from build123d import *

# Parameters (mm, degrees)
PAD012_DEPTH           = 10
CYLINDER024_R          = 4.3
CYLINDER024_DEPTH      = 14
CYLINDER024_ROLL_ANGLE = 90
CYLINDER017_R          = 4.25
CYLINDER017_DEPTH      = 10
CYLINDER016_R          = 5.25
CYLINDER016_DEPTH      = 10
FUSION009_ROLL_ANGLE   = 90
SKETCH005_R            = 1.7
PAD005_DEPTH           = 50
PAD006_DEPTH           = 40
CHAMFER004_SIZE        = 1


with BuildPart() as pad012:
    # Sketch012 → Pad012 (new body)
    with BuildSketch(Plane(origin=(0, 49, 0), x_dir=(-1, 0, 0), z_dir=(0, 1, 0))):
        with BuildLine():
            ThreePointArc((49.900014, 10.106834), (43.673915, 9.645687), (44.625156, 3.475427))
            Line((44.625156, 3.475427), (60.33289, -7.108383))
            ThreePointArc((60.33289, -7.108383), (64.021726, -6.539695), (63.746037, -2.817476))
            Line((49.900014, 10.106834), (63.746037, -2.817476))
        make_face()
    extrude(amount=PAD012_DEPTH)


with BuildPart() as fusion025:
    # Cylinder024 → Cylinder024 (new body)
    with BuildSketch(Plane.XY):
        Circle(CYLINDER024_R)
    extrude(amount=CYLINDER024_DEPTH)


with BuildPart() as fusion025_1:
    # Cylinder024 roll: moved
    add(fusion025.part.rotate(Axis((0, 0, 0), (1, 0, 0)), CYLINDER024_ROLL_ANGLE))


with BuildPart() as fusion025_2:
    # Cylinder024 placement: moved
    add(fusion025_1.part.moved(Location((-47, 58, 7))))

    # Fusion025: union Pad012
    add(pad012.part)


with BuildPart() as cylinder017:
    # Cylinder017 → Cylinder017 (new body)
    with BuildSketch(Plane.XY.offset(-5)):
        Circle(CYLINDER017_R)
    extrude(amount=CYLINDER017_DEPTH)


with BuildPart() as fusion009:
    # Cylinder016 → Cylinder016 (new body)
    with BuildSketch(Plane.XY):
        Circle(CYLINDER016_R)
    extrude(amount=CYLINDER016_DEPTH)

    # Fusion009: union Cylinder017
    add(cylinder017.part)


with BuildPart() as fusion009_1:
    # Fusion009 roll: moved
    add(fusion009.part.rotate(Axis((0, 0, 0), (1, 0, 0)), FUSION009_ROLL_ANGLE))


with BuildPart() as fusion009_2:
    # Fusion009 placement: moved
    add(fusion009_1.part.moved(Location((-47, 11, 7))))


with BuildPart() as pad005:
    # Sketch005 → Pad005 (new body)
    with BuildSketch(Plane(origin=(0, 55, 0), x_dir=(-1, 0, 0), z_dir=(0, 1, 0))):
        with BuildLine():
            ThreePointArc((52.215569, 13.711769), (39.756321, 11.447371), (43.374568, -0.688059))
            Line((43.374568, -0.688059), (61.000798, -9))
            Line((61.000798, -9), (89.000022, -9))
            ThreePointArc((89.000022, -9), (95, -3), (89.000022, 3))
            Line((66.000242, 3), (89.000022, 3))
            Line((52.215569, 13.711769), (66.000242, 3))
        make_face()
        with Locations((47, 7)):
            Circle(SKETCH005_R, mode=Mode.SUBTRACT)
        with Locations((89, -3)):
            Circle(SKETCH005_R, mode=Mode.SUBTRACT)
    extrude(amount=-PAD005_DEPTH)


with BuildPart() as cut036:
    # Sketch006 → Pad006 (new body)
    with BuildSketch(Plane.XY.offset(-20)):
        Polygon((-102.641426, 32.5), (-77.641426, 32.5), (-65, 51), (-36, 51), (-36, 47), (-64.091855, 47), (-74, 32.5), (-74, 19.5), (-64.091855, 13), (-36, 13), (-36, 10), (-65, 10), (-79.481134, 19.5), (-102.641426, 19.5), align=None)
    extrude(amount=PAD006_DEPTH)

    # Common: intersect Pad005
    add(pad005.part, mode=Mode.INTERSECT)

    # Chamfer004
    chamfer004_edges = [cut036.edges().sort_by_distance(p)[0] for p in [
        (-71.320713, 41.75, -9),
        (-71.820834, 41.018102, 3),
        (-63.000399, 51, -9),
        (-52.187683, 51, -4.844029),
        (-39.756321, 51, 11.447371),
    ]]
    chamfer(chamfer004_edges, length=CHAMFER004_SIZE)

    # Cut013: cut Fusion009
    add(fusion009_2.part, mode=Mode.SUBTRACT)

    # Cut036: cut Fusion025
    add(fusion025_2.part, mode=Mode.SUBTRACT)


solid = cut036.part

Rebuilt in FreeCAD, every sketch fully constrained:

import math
import FreeCAD as App
import Part
import Sketcher
from FreeCAD import Vector
Q = App.Units.Quantity


def edges_at(feature, points):
    """Names of the edges that pass closest to the given points."""
    edges = feature.Shape.Edges
    near = lambda p: min(range(len(edges)), key=lambda i: edges[i].distToShape(Part.Vertex(*p))[0])
    return sorted({f"Edge{near(p) + 1}" for p in points})

doc = App.newDocument("Part")
body = doc.addObject("PartDesign::Body", "Body")

# Sketch on XZ plane
sketch1 = body.newObject("Sketcher::SketchObject", "Sketch")
sketch1.AttachmentSupport = (doc.getObject("XZ_Plane"), [""])
sketch1.MapMode = "FlatFace"
sketch1.AttachmentOffset = App.Placement(Vector(0, 0, -49), App.Rotation())
sketch1.addGeometry(Part.ArcOfCircle(Part.Circle(Vector(-47, 7, 0), Vector(0, 0, 1), 4.25), math.radians(-56.028062), math.radians(133.028048)), False)
sketch1.addGeometry(Part.LineSegment(Vector(-44.625156, 3.475427, 0), Vector(-60.33289, -7.108383, 0)), False)
sketch1.addGeometry(Part.ArcOfCircle(Part.Circle(Vector(-61.869555, -4.827778, 0), Vector(0, 0, 1), 2.75), math.radians(133.02811), math.radians(303.97198)), False)
sketch1.addGeometry(Part.LineSegment(Vector(-63.746037, -2.817476, 0), Vector(-49.900014, 10.106834, 0)), False)
sketch1.addConstraint(Sketcher.Constraint("Tangent", 0, 1, 1, 1))
sketch1.addConstraint(Sketcher.Constraint("Tangent", 1, 2, 2, 2))
sketch1.addConstraint(Sketcher.Constraint("Tangent", 2, 1, 3, 1))
sketch1.addConstraint(Sketcher.Constraint("Tangent", 3, 2, 0, 2))
sketch1.addConstraint(Sketcher.Constraint("Radius", 0, Q("4.25 mm")))
sketch1.addConstraint(Sketcher.Constraint("Radius", 2, Q("2.75 mm")))
sketch1.addConstraint(Sketcher.Constraint("DistanceX", 0, 3, -1, 1, Q("47 mm")))
sketch1.addConstraint(Sketcher.Constraint("DistanceY", -1, 1, 0, 3, Q("7 mm")))
sketch1.addConstraint(Sketcher.Constraint("Distance", 3, Q("18.940701 mm")))
sketch1.addConstraint(Sketcher.Constraint("DistanceX", 2, 3, 0, 1, Q("17.244399 mm")))
pad1 = body.newObject("PartDesign::Pad", "Pad")
pad1.Profile = sketch1
pad1.Length = 10
pad1.Reversed = True
body2 = doc.addObject("PartDesign::Body", "Body001")

# Sketch on XY plane
sketch2 = body2.newObject("Sketcher::SketchObject", "Sketch001")
sketch2.AttachmentSupport = (doc.getObject("XY_Plane001"), [""])
sketch2.MapMode = "FlatFace"
sketch2.addGeometry(Part.Circle(Vector(0, 0, 0), Vector(0, 0, 1), 4.3), False)
sketch2.addConstraint(Sketcher.Constraint("Coincident", 0, 3, -1, 1))
sketch2.addConstraint(Sketcher.Constraint("Diameter", 0, Q("8.6 mm")))
pad2 = body2.newObject("PartDesign::Pad", "Pad001")
pad2.Profile = sketch2
pad2.Length = 14
body3 = doc.addObject("PartDesign::Body", "Body002")
doc.recompute()

body2.Placement = App.Placement(Vector(0, 0, 0), App.Rotation(Vector(1, 0, 0), 90))
boolean = body3.newObject("PartDesign::Boolean", "Boolean")
boolean.Type = "Fuse"
boolean.addObjects([body2])
body4 = doc.addObject("PartDesign::Body", "Body003")
doc.recompute()

body3.Placement = App.Placement(Vector(-47, 58, 7), App.Rotation(Vector(0, 0, 1), 0))
boolean2 = body4.newObject("PartDesign::Boolean", "Boolean001")
boolean2.Type = "Fuse"
boolean2.addObjects([body3])
doc.recompute()

boolean3 = body4.newObject("PartDesign::Boolean", "Boolean002")
boolean3.Type = "Fuse"
boolean3.addObjects([body])
body5 = doc.addObject("PartDesign::Body", "Body004")

# Sketch on XY plane
sketch3 = body5.newObject("Sketcher::SketchObject", "Sketch002")
sketch3.AttachmentSupport = (doc.getObject("XY_Plane004"), [""])
sketch3.MapMode = "FlatFace"
sketch3.AttachmentOffset = App.Placement(Vector(0, 0, -5), App.Rotation())
sketch3.addGeometry(Part.Circle(Vector(0, 0, 0), Vector(0, 0, 1), 4.25), False)
sketch3.addConstraint(Sketcher.Constraint("Coincident", 0, 3, -1, 1))
sketch3.addConstraint(Sketcher.Constraint("Diameter", 0, Q("8.5 mm")))
pad3 = body5.newObject("PartDesign::Pad", "Pad002")
pad3.Profile = sketch3
pad3.Length = 10
body6 = doc.addObject("PartDesign::Body", "Body005")

# Sketch on XY plane
sketch4 = body6.newObject("Sketcher::SketchObject", "Sketch003")
sketch4.AttachmentSupport = (doc.getObject("XY_Plane005"), [""])
sketch4.MapMode = "FlatFace"
sketch4.addGeometry(Part.Circle(Vector(0, 0, 0), Vector(0, 0, 1), 5.25), False)
sketch4.addConstraint(Sketcher.Constraint("Coincident", 0, 3, -1, 1))
sketch4.addConstraint(Sketcher.Constraint("Diameter", 0, Q("10.5 mm")))
pad4 = body6.newObject("PartDesign::Pad", "Pad003")
pad4.Profile = sketch4
pad4.Length = 10
doc.recompute()

boolean4 = body6.newObject("PartDesign::Boolean", "Boolean003")
boolean4.Type = "Fuse"
boolean4.addObjects([body5])
body7 = doc.addObject("PartDesign::Body", "Body006")
doc.recompute()

body6.Placement = App.Placement(Vector(0, 0, 0), App.Rotation(Vector(1, 0, 0), 90))
boolean5 = body7.newObject("PartDesign::Boolean", "Boolean004")
boolean5.Type = "Fuse"
boolean5.addObjects([body6])
body8 = doc.addObject("PartDesign::Body", "Body007")
doc.recompute()

body7.Placement = App.Placement(Vector(-47, 11, 7), App.Rotation(Vector(0, 0, 1), 0))
boolean6 = body8.newObject("PartDesign::Boolean", "Boolean005")
boolean6.Type = "Fuse"
boolean6.addObjects([body7])
body9 = doc.addObject("PartDesign::Body", "Body008")

# Sketch on XZ plane
sketch5 = body9.newObject("Sketcher::SketchObject", "Sketch004")
sketch5.AttachmentSupport = (doc.getObject("XZ_Plane008"), [""])
sketch5.MapMode = "FlatFace"
sketch5.AttachmentOffset = App.Placement(Vector(0, 0, -55), App.Rotation())
sketch5.addGeometry(Part.ArcOfCircle(Part.Circle(Vector(-47, 7, 0), Vector(0, 0, 1), 8.5), math.radians(-64.752996), math.radians(127.849994)), False)
sketch5.addGeometry(Part.LineSegment(Vector(-43.374568, -0.688059, 0), Vector(-61.000798, -9, 0)), False)
sketch5.addGeometry(Part.LineSegment(Vector(-61.000798, -9, 0), Vector(-89.000022, -9, 0)), False)
sketch5.addGeometry(Part.ArcOfCircle(Part.Circle(Vector(-89, -3, 0), Vector(0, 0, 1), 6), math.radians(90.00021), math.radians(269.99979)), False)
sketch5.addGeometry(Part.LineSegment(Vector(-89.000022, 3, 0), Vector(-66.000242, 3, 0)), False)
sketch5.addGeometry(Part.LineSegment(Vector(-66.000242, 3, 0), Vector(-52.215569, 13.711769, 0)), False)
sketch5.addGeometry(Part.Circle(Vector(-89, -3, 0), Vector(0, 0, 1), 1.7), False)
sketch5.addGeometry(Part.Circle(Vector(-47, 7, 0), Vector(0, 0, 1), 1.7), False)
sketch5.addConstraint(Sketcher.Constraint("Tangent", 0, 1, 1, 1))
sketch5.addConstraint(Sketcher.Constraint("Coincident", 1, 2, 2, 1))
sketch5.addConstraint(Sketcher.Constraint("Coincident", 2, 2, 3, 2))
sketch5.addConstraint(Sketcher.Constraint("Coincident", 3, 1, 4, 1))
sketch5.addConstraint(Sketcher.Constraint("Coincident", 4, 2, 5, 1))
sketch5.addConstraint(Sketcher.Constraint("Tangent", 5, 2, 0, 2))
sketch5.addConstraint(Sketcher.Constraint("Horizontal", 2))
sketch5.addConstraint(Sketcher.Constraint("Horizontal", 4))
sketch5.addConstraint(Sketcher.Constraint("Coincident", 6, 3, 3, 3))
sketch5.addConstraint(Sketcher.Constraint("Coincident", 7, 3, 0, 3))
sketch5.addConstraint(Sketcher.Constraint("Equal", 6, 7))
sketch5.addConstraint(Sketcher.Constraint("Vertical", 2, 2, 3, 1))
sketch5.addConstraint(Sketcher.Constraint("Radius", 3, Q("6 mm")))
sketch5.addConstraint(Sketcher.Constraint("Diameter", 6, Q("3.4 mm")))
sketch5.addConstraint(Sketcher.Constraint("Radius", 0, Q("8.5 mm")))
sketch5.addConstraint(Sketcher.Constraint("DistanceX", 0, 3, -1, 1, Q("47 mm")))
sketch5.addConstraint(Sketcher.Constraint("DistanceY", -1, 1, 0, 3, Q("7 mm")))
sketch5.addConstraint(Sketcher.Constraint("DistanceX", 3, 3, -1, 1, Q("89 mm")))
sketch5.addConstraint(Sketcher.Constraint("DistanceY", 3, 3, -1, 1, Q("3 mm")))
sketch5.addConstraint(Sketcher.Constraint("Angle", 5, Q("37.850001 deg")))
sketch5.addConstraint(Sketcher.Constraint("DistanceX", 5, 2, 0, 1, Q("8.841001 mm")))
sketch5.addConstraint(Sketcher.Constraint("DistanceX", 4, 1, 4, 2, Q("22.99978 mm")))
pad5 = body9.newObject("PartDesign::Pad", "Pad004")
pad5.Profile = sketch5
pad5.Length = 50
body10 = doc.addObject("PartDesign::Body", "Body009")

# Sketch on XY plane
sketch6 = body10.newObject("Sketcher::SketchObject", "Sketch005")
sketch6.AttachmentSupport = (doc.getObject("XY_Plane009"), [""])
sketch6.MapMode = "FlatFace"
sketch6.AttachmentOffset = App.Placement(Vector(0, 0, -20), App.Rotation())
sketch6.addGeometry(Part.LineSegment(Vector(-77.641426, 32.5, 0), Vector(-102.641426, 32.5, 0)), False)
sketch6.addGeometry(Part.LineSegment(Vector(-102.641426, 32.5, 0), Vector(-102.641426, 19.5, 0)), False)
sketch6.addGeometry(Part.LineSegment(Vector(-102.641426, 19.5, 0), Vector(-79.481134, 19.5, 0)), False)
sketch6.addGeometry(Part.LineSegment(Vector(-79.481134, 19.5, 0), Vector(-65, 10, 0)), False)
sketch6.addGeometry(Part.LineSegment(Vector(-65, 10, 0), Vector(-36, 10, 0)), False)
sketch6.addGeometry(Part.LineSegment(Vector(-36, 10, 0), Vector(-36, 13, 0)), False)
sketch6.addGeometry(Part.LineSegment(Vector(-36, 13, 0), Vector(-64.091855, 13, 0)), False)
sketch6.addGeometry(Part.LineSegment(Vector(-64.091855, 13, 0), Vector(-74, 19.5, 0)), False)
sketch6.addGeometry(Part.LineSegment(Vector(-74, 19.5, 0), Vector(-74, 32.5, 0)), False)
sketch6.addGeometry(Part.LineSegment(Vector(-74, 32.5, 0), Vector(-64.091855, 47, 0)), False)
sketch6.addGeometry(Part.LineSegment(Vector(-64.091855, 47, 0), Vector(-36, 47, 0)), False)
sketch6.addGeometry(Part.LineSegment(Vector(-36, 47, 0), Vector(-36, 51, 0)), False)
sketch6.addGeometry(Part.LineSegment(Vector(-36, 51, 0), Vector(-65, 51, 0)), False)
sketch6.addGeometry(Part.LineSegment(Vector(-65, 51, 0), Vector(-77.641426, 32.5, 0)), False)
sketch6.addConstraint(Sketcher.Constraint("Coincident", 0, 2, 1, 1))
sketch6.addConstraint(Sketcher.Constraint("Coincident", 1, 2, 2, 1))
sketch6.addConstraint(Sketcher.Constraint("Coincident", 2, 2, 3, 1))
sketch6.addConstraint(Sketcher.Constraint("Coincident", 3, 2, 4, 1))
sketch6.addConstraint(Sketcher.Constraint("Coincident", 4, 2, 5, 1))
sketch6.addConstraint(Sketcher.Constraint("Coincident", 5, 2, 6, 1))
sketch6.addConstraint(Sketcher.Constraint("Coincident", 6, 2, 7, 1))
sketch6.addConstraint(Sketcher.Constraint("Coincident", 7, 2, 8, 1))
sketch6.addConstraint(Sketcher.Constraint("Coincident", 8, 2, 9, 1))
sketch6.addConstraint(Sketcher.Constraint("Coincident", 9, 2, 10, 1))
sketch6.addConstraint(Sketcher.Constraint("Coincident", 10, 2, 11, 1))
sketch6.addConstraint(Sketcher.Constraint("Coincident", 11, 2, 12, 1))
sketch6.addConstraint(Sketcher.Constraint("Coincident", 12, 2, 13, 1))
sketch6.addConstraint(Sketcher.Constraint("Coincident", 13, 2, 0, 1))
sketch6.addConstraint(Sketcher.Constraint("Horizontal", 0))
sketch6.addConstraint(Sketcher.Constraint("Vertical", 1))
sketch6.addConstraint(Sketcher.Constraint("Horizontal", 2))
sketch6.addConstraint(Sketcher.Constraint("Horizontal", 4))
sketch6.addConstraint(Sketcher.Constraint("Vertical", 5))
sketch6.addConstraint(Sketcher.Constraint("Horizontal", 6))
sketch6.addConstraint(Sketcher.Constraint("Vertical", 8))
sketch6.addConstraint(Sketcher.Constraint("Horizontal", 10))
sketch6.addConstraint(Sketcher.Constraint("Vertical", 11))
sketch6.addConstraint(Sketcher.Constraint("Horizontal", 12))
sketch6.addConstraint(Sketcher.Constraint("Parallel", 3, 7))
sketch6.addConstraint(Sketcher.Constraint("Parallel", 9, 13))
sketch6.addConstraint(Sketcher.Constraint("Horizontal", 2, 2, 7, 2))
sketch6.addConstraint(Sketcher.Constraint("Horizontal", 0, 2, 8, 2))
sketch6.addConstraint(Sketcher.Constraint("Vertical", 6, 2, 9, 2))
sketch6.addConstraint(Sketcher.Constraint("Vertical", 5, 2, 10, 2))
sketch6.addConstraint(Sketcher.Constraint("Vertical", 3, 2, 12, 2))
sketch6.addConstraint(Sketcher.Constraint("DistanceX", 0, 2, 0, 1, Q("25 mm")))
sketch6.addConstraint(Sketcher.Constraint("DistanceX", 4, 1, 4, 2, Q("29 mm")))
sketch6.addConstraint(Sketcher.Constraint("DistanceY", 1, 2, 1, 1, Q("13 mm")))
sketch6.addConstraint(Sketcher.Constraint("DistanceY", 5, 1, 5, 2, Q("3 mm")))
sketch6.addConstraint(Sketcher.Constraint("DistanceY", 11, 1, 11, 2, Q("4 mm")))
sketch6.addConstraint(Sketcher.Constraint("DistanceX", 3, 2, -1, 1, Q("65 mm")))
sketch6.addConstraint(Sketcher.Constraint("DistanceY", -1, 1, 3, 2, Q("10 mm")))
sketch6.addConstraint(Sketcher.Constraint("DistanceX", 7, 2, -1, 1, Q("74 mm")))
sketch6.addConstraint(Sketcher.Constraint("DistanceY", -1, 1, 9, 2, Q("47 mm")))
sketch6.addConstraint(Sketcher.Constraint("DistanceY", -1, 1, 0, 2, Q("32.5 mm")))
sketch6.addConstraint(Sketcher.Constraint("Distance", 13, Q("22.406598 mm")))
pad6 = body10.newObject("PartDesign::Pad", "Pad005")
pad6.Profile = sketch6
pad6.Length = 40
doc.recompute()

boolean7 = body10.newObject("PartDesign::Boolean", "Boolean006")
boolean7.Type = "Common"
boolean7.addObjects([body9])
doc.recompute()

chamfer = body10.newObject("PartDesign::Chamfer", "Chamfer")
chamfer.Base = (boolean7, edges_at(boolean7, [
    (-71.321, 41.75, -9),
    (-71.821, 41.018, 3),
    (-63, 51, -9),
    (-52.188, 51, -4.844),
    (-39.756, 51, 11.447),
]))
chamfer.Size = 1
doc.recompute()

boolean8 = body10.newObject("PartDesign::Boolean", "Boolean007")
boolean8.Type = "Cut"
boolean8.addObjects([body8])
doc.recompute()

boolean9 = body10.newObject("PartDesign::Boolean", "Boolean008")
boolean9.Type = "Cut"
boolean9.addObjects([body4])

doc.recompute()
